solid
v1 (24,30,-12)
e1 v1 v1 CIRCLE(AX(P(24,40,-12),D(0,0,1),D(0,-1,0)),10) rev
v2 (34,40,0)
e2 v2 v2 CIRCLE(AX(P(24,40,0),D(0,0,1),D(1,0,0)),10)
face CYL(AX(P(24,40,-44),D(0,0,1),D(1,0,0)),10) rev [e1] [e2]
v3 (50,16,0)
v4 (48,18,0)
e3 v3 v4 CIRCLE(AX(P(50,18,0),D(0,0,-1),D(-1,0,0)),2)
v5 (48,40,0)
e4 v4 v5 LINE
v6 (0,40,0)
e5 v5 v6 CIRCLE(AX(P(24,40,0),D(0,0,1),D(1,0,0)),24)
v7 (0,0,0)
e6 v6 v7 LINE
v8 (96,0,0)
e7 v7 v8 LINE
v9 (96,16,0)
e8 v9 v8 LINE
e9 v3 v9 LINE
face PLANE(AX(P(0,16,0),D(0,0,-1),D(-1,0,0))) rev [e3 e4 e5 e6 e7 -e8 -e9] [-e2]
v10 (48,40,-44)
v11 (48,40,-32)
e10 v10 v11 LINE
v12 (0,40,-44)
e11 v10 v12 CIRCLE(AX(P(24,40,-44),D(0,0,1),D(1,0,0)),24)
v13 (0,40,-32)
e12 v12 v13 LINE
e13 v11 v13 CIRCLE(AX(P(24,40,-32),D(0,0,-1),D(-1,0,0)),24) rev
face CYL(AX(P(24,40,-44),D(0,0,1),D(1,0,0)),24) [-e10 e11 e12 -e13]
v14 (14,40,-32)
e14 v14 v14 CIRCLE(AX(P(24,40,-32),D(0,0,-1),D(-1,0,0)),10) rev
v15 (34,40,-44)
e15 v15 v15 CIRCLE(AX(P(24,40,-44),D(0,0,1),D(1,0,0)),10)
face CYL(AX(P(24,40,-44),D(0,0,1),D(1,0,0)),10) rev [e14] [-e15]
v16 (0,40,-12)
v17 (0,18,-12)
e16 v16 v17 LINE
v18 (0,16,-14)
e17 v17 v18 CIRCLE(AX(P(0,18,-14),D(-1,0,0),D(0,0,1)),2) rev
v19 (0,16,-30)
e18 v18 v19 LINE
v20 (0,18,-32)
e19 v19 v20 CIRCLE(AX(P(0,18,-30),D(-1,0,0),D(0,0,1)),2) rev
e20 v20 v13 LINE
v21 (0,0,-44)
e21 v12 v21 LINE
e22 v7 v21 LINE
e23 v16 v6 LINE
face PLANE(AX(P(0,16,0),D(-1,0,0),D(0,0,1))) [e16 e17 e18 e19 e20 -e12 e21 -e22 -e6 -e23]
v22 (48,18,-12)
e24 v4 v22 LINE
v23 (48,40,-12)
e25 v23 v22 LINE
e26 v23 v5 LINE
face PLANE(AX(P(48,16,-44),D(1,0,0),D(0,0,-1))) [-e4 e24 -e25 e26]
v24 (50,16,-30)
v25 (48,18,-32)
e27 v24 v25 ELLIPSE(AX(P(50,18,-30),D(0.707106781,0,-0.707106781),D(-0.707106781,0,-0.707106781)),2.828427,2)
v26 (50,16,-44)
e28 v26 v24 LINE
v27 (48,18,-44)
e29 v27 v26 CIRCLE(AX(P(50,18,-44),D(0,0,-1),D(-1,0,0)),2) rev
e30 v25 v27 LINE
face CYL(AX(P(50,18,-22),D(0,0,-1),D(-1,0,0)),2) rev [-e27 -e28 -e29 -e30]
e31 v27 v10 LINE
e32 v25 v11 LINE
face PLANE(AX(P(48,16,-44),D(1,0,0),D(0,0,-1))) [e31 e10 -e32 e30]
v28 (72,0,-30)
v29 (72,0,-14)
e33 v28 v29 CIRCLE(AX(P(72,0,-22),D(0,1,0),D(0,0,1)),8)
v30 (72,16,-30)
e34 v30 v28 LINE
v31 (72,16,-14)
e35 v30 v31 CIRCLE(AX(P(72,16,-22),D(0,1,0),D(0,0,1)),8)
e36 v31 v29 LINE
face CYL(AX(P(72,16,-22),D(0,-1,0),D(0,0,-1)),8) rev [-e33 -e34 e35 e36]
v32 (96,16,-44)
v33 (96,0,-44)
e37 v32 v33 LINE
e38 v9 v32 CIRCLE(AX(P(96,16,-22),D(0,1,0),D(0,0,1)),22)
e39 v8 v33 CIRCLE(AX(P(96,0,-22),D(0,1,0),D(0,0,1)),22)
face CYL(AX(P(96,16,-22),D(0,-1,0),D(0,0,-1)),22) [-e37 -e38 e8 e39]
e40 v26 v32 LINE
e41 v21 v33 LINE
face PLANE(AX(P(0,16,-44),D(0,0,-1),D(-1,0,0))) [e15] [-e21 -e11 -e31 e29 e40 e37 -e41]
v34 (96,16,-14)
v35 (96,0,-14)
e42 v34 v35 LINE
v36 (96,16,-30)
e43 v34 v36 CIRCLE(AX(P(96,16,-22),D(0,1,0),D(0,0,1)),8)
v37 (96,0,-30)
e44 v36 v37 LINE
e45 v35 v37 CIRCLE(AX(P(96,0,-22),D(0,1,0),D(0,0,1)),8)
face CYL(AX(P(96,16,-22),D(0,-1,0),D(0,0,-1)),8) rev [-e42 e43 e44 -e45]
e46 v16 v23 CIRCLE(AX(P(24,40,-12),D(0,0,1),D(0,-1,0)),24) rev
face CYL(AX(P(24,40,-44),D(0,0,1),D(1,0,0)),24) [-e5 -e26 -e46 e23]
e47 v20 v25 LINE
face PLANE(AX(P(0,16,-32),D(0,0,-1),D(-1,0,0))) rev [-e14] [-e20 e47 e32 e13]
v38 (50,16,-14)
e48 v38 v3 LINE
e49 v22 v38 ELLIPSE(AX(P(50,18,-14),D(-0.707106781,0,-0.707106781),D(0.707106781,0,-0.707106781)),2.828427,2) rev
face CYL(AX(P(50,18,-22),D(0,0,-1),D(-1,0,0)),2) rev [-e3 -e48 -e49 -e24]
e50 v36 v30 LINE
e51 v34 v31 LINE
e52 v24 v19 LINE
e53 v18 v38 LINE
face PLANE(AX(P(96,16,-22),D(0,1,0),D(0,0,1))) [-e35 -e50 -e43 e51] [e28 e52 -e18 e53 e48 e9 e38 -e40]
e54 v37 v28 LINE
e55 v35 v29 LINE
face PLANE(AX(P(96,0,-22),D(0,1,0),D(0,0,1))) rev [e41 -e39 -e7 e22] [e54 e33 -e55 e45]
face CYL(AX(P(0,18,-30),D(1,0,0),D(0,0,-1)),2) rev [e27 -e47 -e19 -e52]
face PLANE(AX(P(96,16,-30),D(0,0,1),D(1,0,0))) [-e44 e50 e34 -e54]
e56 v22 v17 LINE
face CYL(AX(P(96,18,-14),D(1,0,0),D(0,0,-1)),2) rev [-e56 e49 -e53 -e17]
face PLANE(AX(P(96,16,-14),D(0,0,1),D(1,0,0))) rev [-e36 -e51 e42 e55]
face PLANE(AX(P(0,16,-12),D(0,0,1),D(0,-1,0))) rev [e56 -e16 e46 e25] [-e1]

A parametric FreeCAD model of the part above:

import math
import FreeCAD as App
import Part
import Sketcher
from FreeCAD import Vector
Q = App.Units.Quantity


def edges_at(feature, points):
    """Names of the edges that pass closest to the given points."""
    edges = feature.Shape.Edges
    near = lambda p: min(range(len(edges)), key=lambda i: edges[i].distToShape(Part.Vertex(*p))[0])
    return sorted({f"Edge{near(p) + 1}" for p in points})


def add_polygon(sketch, points):
    """Adds a closed chain of lines whose ends are joined by coincident constraints."""
    first, n = sketch.GeometryCount, len(points)
    for a, b in zip(points, points[1:] + points[:1]):
        sketch.addGeometry(Part.LineSegment(App.Vector(*a, 0), App.Vector(*b, 0)), False)
    for i in range(n):
        sketch.addConstraint(Sketcher.Constraint("Coincident", first + i, 2, first + (i + 1) % n, 1))

doc = App.newDocument("Part")
body = doc.addObject("PartDesign::Body", "Body")

sketch1 = body.newObject("Sketcher::SketchObject", "Sketch")
sketch1.AttachmentSupport = (doc.getObject("XZ_Plane"), [""])
sketch1.MapMode = "FlatFace"
sketch1.addGeometry(Part.LineSegment(Vector(0, 0, 0), Vector(96, 0, 0)), False)
sketch1.addGeometry(Part.ArcOfCircle(Part.Circle(Vector(96, -22, 0), Vector(0, 0, 1), 22), math.radians(-90), math.radians(90)), False)
sketch1.addGeometry(Part.LineSegment(Vector(96, -44, 0), Vector(0, -44, 0)), False)
sketch1.addGeometry(Part.LineSegment(Vector(0, -44, 0), Vector(0, 0, 0)), False)
sketch1.addGeometry(Part.ArcOfCircle(Part.Circle(Vector(96, -22, 0), Vector(0, 0, 1), 8), math.radians(-90), math.radians(90)), False)
sketch1.addGeometry(Part.LineSegment(Vector(96, -14, 0), Vector(72, -14, 0)), False)
sketch1.addGeometry(Part.ArcOfCircle(Part.Circle(Vector(72, -22, 0), Vector(0, 0, 1), 8), math.radians(90), math.radians(270)), False)
sketch1.addGeometry(Part.LineSegment(Vector(72, -30, 0), Vector(96, -30, 0)), False)
sketch1.addConstraint(Sketcher.Constraint("Tangent", 0, 2, 1, 2))
sketch1.addConstraint(Sketcher.Constraint("Tangent", 1, 1, 2, 1))
sketch1.addConstraint(Sketcher.Constraint("Coincident", 2, 2, 3, 1))
sketch1.addConstraint(Sketcher.Constraint("Coincident", 3, 2, 0, 1))
sketch1.addConstraint(Sketcher.Constraint("Tangent", 4, 2, 5, 1))
sketch1.addConstraint(Sketcher.Constraint("Tangent", 5, 2, 6, 1))
sketch1.addConstraint(Sketcher.Constraint("Tangent", 6, 2, 7, 1))
sketch1.addConstraint(Sketcher.Constraint("Tangent", 7, 2, 4, 1))
sketch1.addConstraint(Sketcher.Constraint("Horizontal", 0))
sketch1.addConstraint(Sketcher.Constraint("Horizontal", 2))
sketch1.addConstraint(Sketcher.Constraint("Vertical", 3))
sketch1.addConstraint(Sketcher.Constraint("Horizontal", 5))
sketch1.addConstraint(Sketcher.Constraint("Horizontal", 7))
sketch1.addConstraint(Sketcher.Constraint("Coincident", 3, 2, -1, 1))
sketch1.addConstraint(Sketcher.Constraint("Coincident", 4, 3, 1, 3))
sketch1.addConstraint(Sketcher.Constraint("Radius", 1, Q("22 mm")))
sketch1.addConstraint(Sketcher.Constraint("Radius", 4, Q("8 mm")))
sketch1.addConstraint(Sketcher.Constraint("DistanceX", 0, 1, 0, 2, Q("96 mm")))
sketch1.addConstraint(Sketcher.Constraint("DistanceX", 5, 2, 5, 1, Q("24 mm")))
pad1 = body.newObject("PartDesign::Pad", "Pad")
pad1.Profile = sketch1
pad1.Length = 16
pad1.Reversed = True

sketch2 = body.newObject("Sketcher::SketchObject", "Sketch001")
sketch2.AttachmentSupport = (doc.getObject("XY_Plane"), [""])
sketch2.MapMode = "FlatFace"
sketch2.addGeometry(Part.LineSegment(Vector(0, 16, 0), Vector(48, 16, 0)), False)
sketch2.addGeometry(Part.LineSegment(Vector(48, 16, 0), Vector(48, 40, 0)), False)
sketch2.addGeometry(Part.ArcOfCircle(Part.Circle(Vector(24, 40, 0), Vector(0, 0, 1), 24), math.radians(0), math.radians(180)), False)
sketch2.addGeometry(Part.LineSegment(Vector(0, 40, 0), Vector(0, 16, 0)), False)
sketch2.addGeometry(Part.Circle(Vector(24, 40, 0), Vector(0, 0, 1), 10), False)
sketch2.addConstraint(Sketcher.Constraint("Coincident", 0, 2, 1, 1))
sketch2.addConstraint(Sketcher.Constraint("Tangent", 1, 2, 2, 1))
sketch2.addConstraint(Sketcher.Constraint("Tangent", 2, 2, 3, 1))
sketch2.addConstraint(Sketcher.Constraint("Coincident", 3, 2, 0, 1))
sketch2.addConstraint(Sketcher.Constraint("Horizontal", 0))
sketch2.addConstraint(Sketcher.Constraint("Vertical", 1))
sketch2.addConstraint(Sketcher.Constraint("Vertical", 3))
sketch2.addConstraint(Sketcher.Constraint("Coincident", 4, 3, 2, 3))
sketch2.addConstraint(Sketcher.Constraint("PointOnObject", 2, 2, -2))
sketch2.addConstraint(Sketcher.Constraint("Diameter", 4, Q("20 mm")))
sketch2.addConstraint(Sketcher.Constraint("Radius", 2, Q("24 mm")))
sketch2.addConstraint(Sketcher.Constraint("DistanceY", 1, 1, 1, 2, Q("24 mm")))
sketch2.addConstraint(Sketcher.Constraint("DistanceY", -1, 1, 2, 3, Q("40 mm")))
pad2 = body.newObject("PartDesign::Pad", "Pad001")
pad2.Profile = sketch2
pad2.Length = 44
pad2.Reversed = True

sketch3 = body.newObject("Sketcher::SketchObject", "Sketch002")
sketch3.AttachmentSupport = (doc.getObject("YZ_Plane"), [""])
sketch3.MapMode = "FlatFace"
sketch3.AttachmentOffset = App.Placement(Vector(0, 0, 48), App.Rotation())
add_polygon(sketch3, [(64, -12), (16, -12), (16, -32), (64, -32)])
sketch3.addConstraint(Sketcher.Constraint("Horizontal", 0))
sketch3.addConstraint(Sketcher.Constraint("Vertical", 1))
sketch3.addConstraint(Sketcher.Constraint("Horizontal", 2))
sketch3.addConstraint(Sketcher.Constraint("Vertical", 3))
sketch3.addConstraint(Sketcher.Constraint("DistanceX", 0, 2, 0, 1, Q("48 mm")))
sketch3.addConstraint(Sketcher.Constraint("DistanceY", 1, 2, 1, 1, Q("20 mm")))
sketch3.addConstraint(Sketcher.Constraint("DistanceX", -1, 1, 0, 2, Q("16 mm")))
sketch3.addConstraint(Sketcher.Constraint("DistanceY", 0, 2, -1, 1, Q("12 mm")))
pocket1 = body.newObject("PartDesign::Pocket", "Pocket")
pocket1.Profile = sketch3
pocket1.Type = "ThroughAll"
doc.recompute()

fillet = body.newObject("PartDesign::Fillet", "Fillet")
fillet.Base = (pocket1, edges_at(pocket1, [
    (48, 16, -38),
    (48, 16, -6),
    (24, 16, -12),
    (24, 16, -32),
]))
fillet.Radius = 2

doc.recompute()
